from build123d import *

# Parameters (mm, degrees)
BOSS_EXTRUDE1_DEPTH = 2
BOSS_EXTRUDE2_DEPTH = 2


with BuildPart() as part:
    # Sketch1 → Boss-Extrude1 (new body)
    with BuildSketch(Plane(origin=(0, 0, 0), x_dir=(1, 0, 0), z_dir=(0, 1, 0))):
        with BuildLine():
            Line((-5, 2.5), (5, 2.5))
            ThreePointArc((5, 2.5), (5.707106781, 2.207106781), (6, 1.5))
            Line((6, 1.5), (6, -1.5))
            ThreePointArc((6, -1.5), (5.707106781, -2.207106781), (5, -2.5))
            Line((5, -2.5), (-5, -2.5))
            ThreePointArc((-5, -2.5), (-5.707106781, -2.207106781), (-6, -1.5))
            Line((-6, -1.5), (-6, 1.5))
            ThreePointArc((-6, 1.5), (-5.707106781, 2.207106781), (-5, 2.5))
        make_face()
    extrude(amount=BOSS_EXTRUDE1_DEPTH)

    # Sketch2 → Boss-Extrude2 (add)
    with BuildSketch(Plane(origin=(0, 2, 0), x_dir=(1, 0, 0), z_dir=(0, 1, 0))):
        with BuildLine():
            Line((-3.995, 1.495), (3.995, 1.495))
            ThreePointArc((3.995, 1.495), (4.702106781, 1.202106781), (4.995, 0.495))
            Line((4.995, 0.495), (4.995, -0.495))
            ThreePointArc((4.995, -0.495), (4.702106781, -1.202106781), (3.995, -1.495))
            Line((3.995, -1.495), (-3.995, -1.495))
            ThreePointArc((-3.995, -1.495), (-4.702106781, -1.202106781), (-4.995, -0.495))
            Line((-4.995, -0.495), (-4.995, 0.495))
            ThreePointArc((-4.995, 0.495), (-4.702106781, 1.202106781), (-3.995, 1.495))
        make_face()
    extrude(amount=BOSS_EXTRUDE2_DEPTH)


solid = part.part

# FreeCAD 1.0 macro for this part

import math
import FreeCAD as App
import Part
import Sketcher
Q = App.Units.Quantity

doc = App.newDocument("Part")
body = doc.addObject("PartDesign::Body", "Body")

# Sketch on XZ plane
sketch1 = body.newObject("Sketcher::SketchObject", "Sketch")
sketch1.AttachmentSupport = (doc.getObject("XZ_Plane"), [""])
sketch1.MapMode = "FlatFace"
sketch1.addGeometry([
    Part.LineSegment(App.Vector(5, -2.5, 0), App.Vector(-5, -2.5, 0)),  # 0
    Part.ArcOfCircle(Part.Circle(App.Vector(-5, -1.5, 0), App.Vector(0, 0, 1), 1), math.radians(-180), math.radians(-90)),  # 1
    Part.LineSegment(App.Vector(-6, -1.5, 0), App.Vector(-6, 1.5, 0)),  # 2
    Part.ArcOfCircle(Part.Circle(App.Vector(-5, 1.5, 0), App.Vector(0, 0, 1), 1), math.radians(90), math.radians(180)),  # 3
    Part.LineSegment(App.Vector(-5, 2.5, 0), App.Vector(5, 2.5, 0)),  # 4
    Part.ArcOfCircle(Part.Circle(App.Vector(5, 1.5, 0), App.Vector(0, 0, 1), 1), math.radians(0), math.radians(90)),  # 5
    Part.LineSegment(App.Vector(6, 1.5, 0), App.Vector(6, -1.5, 0)),  # 6
    Part.ArcOfCircle(Part.Circle(App.Vector(5, -1.5, 0), App.Vector(0, 0, 1), 1), math.radians(-90), math.radians(0)),  # 7
], False)
sketch1.addConstraint([
    Sketcher.Constraint("Tangent", 0, 2, 1, 2),
    Sketcher.Constraint("Tangent", 1, 1, 2, 1),
    Sketcher.Constraint("Tangent", 2, 2, 3, 2),
    Sketcher.Constraint("Tangent", 3, 1, 4, 1),
    Sketcher.Constraint("Tangent", 4, 2, 5, 2),
    Sketcher.Constraint("Tangent", 5, 1, 6, 1),
    Sketcher.Constraint("Tangent", 6, 2, 7, 2),
    Sketcher.Constraint("Tangent", 7, 1, 0, 1),
    Sketcher.Constraint("Horizontal", 0),
    Sketcher.Constraint("Vertical", 2),
    Sketcher.Constraint("Horizontal", 4),
    Sketcher.Constraint("Vertical", 6),
    Sketcher.Constraint("Equal", 1, 3),
    Sketcher.Constraint("Equal", 3, 5),
    Sketcher.Constraint("Equal", 5, 7),
    Sketcher.Constraint("Symmetric", 1, 3, 5, 3, -1, 1),
    Sketcher.Constraint("Radius", 1, Q("1 mm")),
    Sketcher.Constraint("DistanceX", 0, 2, 0, 1, Q("10 mm")),
    Sketcher.Constraint("DistanceY", 2, 1, 2, 2, Q("3 mm")),
])
pad1 = body.newObject("PartDesign::Pad", "Pad")
pad1.Profile = sketch1
pad1.Length = 2
pad1.Reversed = True

# Sketch on XZ plane
sketch2 = body.newObject("Sketcher::SketchObject", "Sketch001")
sketch2.AttachmentSupport = (doc.getObject("XZ_Plane"), [""])
sketch2.MapMode = "FlatFace"
sketch2.AttachmentOffset = App.Placement(App.Vector(0, 0, -2), App.Rotation())
sketch2.addGeometry([
    Part.LineSegment(App.Vector(4, -1.5, 0), App.Vector(-4, -1.5, 0)),  # 0
    Part.ArcOfCircle(Part.Circle(App.Vector(-4, -0.5, 0), App.Vector(0, 0, 1), 1), math.radians(-180), math.radians(-90)),  # 1
    Part.LineSegment(App.Vector(-5, -0.5, 0), App.Vector(-5, 0.5, 0)),  # 2
    Part.ArcOfCircle(Part.Circle(App.Vector(-4, 0.5, 0), App.Vector(0, 0, 1), 1), math.radians(90), math.radians(180)),  # 3
    Part.LineSegment(App.Vector(-4, 1.5, 0), App.Vector(4, 1.5, 0)),  # 4
    Part.ArcOfCircle(Part.Circle(App.Vector(4, 0.5, 0), App.Vector(0, 0, 1), 1), math.radians(0), math.radians(90)),  # 5
    Part.LineSegment(App.Vector(5, 0.5, 0), App.Vector(5, -0.5, 0)),  # 6
    Part.ArcOfCircle(Part.Circle(App.Vector(4, -0.5, 0), App.Vector(0, 0, 1), 1), math.radians(-90), math.radians(0)),  # 7
], False)
sketch2.addConstraint([
    Sketcher.Constraint("Tangent", 0, 2, 1, 2),
    Sketcher.Constraint("Tangent", 1, 1, 2, 1),
    Sketcher.Constraint("Tangent", 2, 2, 3, 2),
    Sketcher.Constraint("Tangent", 3, 1, 4, 1),
    Sketcher.Constraint("Tangent", 4, 2, 5, 2),
    Sketcher.Constraint("Tangent", 5, 1, 6, 1),
    Sketcher.Constraint("Tangent", 6, 2, 7, 2),
    Sketcher.Constraint("Tangent", 7, 1, 0, 1),
    Sketcher.Constraint("Horizontal", 0),
    Sketcher.Constraint("Vertical", 2),
    Sketcher.Constraint("Horizontal", 4),
    Sketcher.Constraint("Vertical", 6),
    Sketcher.Constraint("Equal", 1, 3),
    Sketcher.Constraint("Equal", 3, 5),
    Sketcher.Constraint("Equal", 5, 7),
    Sketcher.Constraint("Symmetric", 1, 3, 5, 3, -1, 1),
    Sketcher.Constraint("Radius", 1, Q("1 mm")),
    Sketcher.Constraint("DistanceX", 0, 2, 0, 1, Q("7.99 mm")),
    Sketcher.Constraint("DistanceY", 2, 1, 2, 2, Q("0.99 mm")),
])
pad2 = body.newObject("PartDesign::Pad", "Pad001")
pad2.Profile = sketch2
pad2.Length = 2
pad2.Reversed = True

doc.recompute()
